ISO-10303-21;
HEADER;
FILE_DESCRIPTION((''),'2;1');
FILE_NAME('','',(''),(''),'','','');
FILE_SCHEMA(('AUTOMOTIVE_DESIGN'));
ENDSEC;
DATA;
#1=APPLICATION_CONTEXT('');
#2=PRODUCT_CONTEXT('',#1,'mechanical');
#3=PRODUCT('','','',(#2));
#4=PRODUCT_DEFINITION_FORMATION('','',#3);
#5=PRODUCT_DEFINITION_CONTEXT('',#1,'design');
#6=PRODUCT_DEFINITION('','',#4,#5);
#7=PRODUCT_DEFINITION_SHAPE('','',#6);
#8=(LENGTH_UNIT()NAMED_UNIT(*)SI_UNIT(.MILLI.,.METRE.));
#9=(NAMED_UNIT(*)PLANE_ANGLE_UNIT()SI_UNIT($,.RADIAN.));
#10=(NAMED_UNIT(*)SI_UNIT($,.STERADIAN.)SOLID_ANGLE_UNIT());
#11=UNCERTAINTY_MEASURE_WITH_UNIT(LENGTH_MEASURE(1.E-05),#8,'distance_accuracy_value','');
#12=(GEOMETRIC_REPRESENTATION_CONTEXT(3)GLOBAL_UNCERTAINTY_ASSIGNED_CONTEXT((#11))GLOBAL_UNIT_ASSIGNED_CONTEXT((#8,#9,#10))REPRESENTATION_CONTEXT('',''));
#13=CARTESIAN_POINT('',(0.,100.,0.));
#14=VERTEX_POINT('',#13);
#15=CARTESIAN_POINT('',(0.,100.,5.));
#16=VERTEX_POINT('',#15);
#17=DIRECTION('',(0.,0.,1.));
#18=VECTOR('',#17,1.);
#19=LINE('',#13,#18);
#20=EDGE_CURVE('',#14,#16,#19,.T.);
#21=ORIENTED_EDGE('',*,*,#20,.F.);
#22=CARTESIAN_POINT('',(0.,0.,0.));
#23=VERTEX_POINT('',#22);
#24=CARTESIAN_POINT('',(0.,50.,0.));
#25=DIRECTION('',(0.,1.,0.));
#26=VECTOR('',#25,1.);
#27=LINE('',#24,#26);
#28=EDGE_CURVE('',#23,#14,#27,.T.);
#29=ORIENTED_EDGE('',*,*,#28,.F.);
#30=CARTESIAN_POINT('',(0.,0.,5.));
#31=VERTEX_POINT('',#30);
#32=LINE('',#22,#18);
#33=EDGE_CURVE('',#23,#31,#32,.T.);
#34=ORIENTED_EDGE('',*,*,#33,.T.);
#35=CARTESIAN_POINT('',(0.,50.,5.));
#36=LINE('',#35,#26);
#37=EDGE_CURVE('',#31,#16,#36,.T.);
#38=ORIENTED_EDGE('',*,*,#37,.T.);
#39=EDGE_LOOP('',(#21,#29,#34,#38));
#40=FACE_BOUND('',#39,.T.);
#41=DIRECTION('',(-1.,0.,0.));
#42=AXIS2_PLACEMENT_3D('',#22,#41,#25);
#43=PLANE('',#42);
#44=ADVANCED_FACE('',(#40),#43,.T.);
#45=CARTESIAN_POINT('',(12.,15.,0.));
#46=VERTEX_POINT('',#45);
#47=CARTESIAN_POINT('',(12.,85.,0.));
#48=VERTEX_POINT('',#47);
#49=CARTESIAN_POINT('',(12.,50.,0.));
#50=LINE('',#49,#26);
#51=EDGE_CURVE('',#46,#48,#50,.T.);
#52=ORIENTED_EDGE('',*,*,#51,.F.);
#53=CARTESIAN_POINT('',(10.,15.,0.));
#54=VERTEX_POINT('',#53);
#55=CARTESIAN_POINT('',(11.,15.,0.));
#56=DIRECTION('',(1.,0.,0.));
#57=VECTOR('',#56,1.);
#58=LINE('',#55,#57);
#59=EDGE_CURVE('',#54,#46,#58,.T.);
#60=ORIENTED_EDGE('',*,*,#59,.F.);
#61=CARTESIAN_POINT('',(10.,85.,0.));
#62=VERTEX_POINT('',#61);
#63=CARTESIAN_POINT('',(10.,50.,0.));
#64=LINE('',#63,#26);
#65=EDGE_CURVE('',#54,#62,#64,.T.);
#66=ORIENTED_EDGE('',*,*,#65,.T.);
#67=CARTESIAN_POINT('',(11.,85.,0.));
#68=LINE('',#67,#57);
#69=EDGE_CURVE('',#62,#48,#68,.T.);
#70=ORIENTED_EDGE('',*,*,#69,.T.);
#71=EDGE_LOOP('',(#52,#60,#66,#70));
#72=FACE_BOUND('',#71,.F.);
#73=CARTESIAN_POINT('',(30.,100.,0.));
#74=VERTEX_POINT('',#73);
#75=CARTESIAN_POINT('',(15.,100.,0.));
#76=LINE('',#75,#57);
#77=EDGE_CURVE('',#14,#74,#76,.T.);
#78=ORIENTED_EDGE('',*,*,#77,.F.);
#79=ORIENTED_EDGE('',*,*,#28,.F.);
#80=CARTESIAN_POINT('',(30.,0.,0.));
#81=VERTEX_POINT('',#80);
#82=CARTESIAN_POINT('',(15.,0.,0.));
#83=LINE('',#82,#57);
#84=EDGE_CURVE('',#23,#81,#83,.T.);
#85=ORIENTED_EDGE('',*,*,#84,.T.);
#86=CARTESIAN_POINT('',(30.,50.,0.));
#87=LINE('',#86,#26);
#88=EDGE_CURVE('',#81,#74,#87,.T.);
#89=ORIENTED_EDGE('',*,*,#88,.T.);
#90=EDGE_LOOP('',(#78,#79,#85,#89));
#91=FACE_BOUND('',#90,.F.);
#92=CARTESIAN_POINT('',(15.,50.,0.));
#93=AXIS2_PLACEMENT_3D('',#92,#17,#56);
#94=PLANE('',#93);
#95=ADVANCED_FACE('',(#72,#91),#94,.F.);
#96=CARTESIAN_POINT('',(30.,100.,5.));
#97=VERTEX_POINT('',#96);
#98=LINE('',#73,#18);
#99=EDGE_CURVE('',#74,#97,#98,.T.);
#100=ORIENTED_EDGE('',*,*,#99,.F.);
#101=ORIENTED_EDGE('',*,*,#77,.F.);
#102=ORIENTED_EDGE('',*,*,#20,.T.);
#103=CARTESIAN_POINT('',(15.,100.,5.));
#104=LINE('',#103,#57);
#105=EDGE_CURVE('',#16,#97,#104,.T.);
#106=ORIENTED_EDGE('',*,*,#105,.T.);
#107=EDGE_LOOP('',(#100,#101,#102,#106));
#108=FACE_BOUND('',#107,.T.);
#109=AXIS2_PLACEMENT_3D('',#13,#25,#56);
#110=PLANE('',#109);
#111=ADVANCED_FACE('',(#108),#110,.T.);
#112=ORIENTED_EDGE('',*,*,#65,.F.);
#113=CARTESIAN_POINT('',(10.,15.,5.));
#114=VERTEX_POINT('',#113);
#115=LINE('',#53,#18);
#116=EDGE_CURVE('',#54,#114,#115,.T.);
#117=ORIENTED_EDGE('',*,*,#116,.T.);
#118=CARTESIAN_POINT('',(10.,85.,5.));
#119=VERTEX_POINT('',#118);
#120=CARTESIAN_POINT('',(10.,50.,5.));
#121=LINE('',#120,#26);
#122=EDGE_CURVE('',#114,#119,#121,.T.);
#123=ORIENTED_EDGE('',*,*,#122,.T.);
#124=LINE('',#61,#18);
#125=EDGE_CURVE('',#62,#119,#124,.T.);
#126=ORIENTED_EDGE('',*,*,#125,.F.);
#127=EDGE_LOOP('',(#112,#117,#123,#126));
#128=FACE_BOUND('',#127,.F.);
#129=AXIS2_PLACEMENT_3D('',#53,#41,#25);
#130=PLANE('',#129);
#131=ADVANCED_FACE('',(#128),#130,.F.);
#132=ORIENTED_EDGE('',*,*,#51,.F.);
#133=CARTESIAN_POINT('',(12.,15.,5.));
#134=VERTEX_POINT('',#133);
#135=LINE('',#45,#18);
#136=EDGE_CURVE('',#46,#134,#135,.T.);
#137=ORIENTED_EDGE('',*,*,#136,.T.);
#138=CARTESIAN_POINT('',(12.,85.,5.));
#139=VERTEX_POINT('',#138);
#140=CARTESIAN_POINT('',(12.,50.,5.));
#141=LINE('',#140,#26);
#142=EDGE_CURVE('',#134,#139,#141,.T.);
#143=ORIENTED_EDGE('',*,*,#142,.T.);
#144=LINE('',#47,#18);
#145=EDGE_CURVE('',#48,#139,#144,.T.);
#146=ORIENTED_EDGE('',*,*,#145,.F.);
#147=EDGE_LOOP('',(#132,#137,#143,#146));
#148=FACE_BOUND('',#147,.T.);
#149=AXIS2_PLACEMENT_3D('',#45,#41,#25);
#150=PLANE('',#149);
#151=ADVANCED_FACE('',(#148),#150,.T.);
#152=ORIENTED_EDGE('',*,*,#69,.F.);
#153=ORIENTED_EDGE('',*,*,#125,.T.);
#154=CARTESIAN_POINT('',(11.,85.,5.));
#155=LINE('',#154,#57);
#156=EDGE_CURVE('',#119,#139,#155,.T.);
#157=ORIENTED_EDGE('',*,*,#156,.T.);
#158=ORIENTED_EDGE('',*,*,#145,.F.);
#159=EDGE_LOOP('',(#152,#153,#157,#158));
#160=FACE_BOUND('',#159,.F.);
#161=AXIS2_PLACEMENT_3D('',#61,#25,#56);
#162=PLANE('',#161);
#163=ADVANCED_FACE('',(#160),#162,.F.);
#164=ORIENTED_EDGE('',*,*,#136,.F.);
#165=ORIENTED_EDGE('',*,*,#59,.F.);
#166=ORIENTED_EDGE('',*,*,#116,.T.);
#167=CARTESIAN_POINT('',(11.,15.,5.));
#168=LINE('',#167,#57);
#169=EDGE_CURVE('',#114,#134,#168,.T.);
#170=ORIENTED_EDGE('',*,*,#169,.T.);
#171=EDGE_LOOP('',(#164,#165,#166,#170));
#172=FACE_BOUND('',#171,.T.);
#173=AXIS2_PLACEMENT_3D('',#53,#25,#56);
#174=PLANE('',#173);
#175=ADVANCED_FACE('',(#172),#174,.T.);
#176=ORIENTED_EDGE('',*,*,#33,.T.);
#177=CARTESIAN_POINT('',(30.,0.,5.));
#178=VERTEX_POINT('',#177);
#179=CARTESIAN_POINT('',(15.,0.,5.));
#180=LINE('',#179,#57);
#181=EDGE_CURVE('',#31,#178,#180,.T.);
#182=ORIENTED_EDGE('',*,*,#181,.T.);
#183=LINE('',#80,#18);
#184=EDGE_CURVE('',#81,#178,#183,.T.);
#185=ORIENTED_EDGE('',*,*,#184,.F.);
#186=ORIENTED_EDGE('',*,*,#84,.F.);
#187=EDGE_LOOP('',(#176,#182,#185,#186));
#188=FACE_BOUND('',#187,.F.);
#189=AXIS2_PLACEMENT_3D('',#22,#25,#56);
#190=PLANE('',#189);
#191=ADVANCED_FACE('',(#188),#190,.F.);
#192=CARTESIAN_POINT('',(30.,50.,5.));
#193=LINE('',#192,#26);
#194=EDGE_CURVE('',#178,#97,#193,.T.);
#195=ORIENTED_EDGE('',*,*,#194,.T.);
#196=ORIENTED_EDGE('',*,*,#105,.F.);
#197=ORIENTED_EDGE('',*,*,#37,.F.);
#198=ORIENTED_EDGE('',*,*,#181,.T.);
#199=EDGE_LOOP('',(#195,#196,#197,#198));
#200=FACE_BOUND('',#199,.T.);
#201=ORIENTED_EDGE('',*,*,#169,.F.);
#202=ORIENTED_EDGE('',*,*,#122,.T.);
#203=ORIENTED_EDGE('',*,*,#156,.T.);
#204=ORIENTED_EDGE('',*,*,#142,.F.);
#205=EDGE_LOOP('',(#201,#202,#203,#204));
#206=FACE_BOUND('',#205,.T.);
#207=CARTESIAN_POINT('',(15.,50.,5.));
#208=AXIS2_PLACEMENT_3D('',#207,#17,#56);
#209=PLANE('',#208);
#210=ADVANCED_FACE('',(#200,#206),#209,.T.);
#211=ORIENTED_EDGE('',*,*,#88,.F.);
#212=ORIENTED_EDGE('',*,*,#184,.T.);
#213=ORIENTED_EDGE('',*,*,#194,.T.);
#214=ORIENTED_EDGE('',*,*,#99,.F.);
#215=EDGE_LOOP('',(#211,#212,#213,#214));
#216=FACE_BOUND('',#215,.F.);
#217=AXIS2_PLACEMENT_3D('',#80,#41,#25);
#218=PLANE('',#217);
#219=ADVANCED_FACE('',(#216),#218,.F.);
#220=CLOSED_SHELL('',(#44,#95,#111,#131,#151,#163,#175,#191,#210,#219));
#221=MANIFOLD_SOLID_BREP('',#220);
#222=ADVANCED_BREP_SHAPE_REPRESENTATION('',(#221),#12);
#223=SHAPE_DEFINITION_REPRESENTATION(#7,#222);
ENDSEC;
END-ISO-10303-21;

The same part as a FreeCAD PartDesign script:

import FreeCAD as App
import Part
import Sketcher
from FreeCAD import Vector
Q = App.Units.Quantity

doc = App.newDocument("Part")
params = doc.addObject("Spreadsheet::Sheet", "Params")
for row, (alias, value) in enumerate([
    ("sketch1_width", "2 mm"),
    ("sketch1_height", "70 mm"),
    ("pad1_length", "5 mm"),
    ("sketch2_width", "30 mm"),
    ("sketch2_height", "100 mm"),
    ("pad2_length", "5 mm"),
], start=1):
    params.set(f"A{row}", alias)
    params.set(f"B{row}", "=" + value)
    params.setAlias(f"B{row}", alias)

body = doc.addObject("PartDesign::Body", "Body")

# Sketch on XY plane
sketch1 = body.newObject("Sketcher::SketchObject", "Sketch")
sketch1.AttachmentSupport = (doc.getObject("XY_Plane"), [""])
sketch1.MapMode = "FlatFace"
sketch1.addGeometry(Part.LineSegment(Vector(10, 85, 0), Vector(10, 15, 0)), False)
sketch1.addGeometry(Part.LineSegment(Vector(10, 15, 0), Vector(12, 15, 0)), False)
sketch1.addGeometry(Part.LineSegment(Vector(12, 15, 0), Vector(12, 85, 0)), False)
sketch1.addGeometry(Part.LineSegment(Vector(12, 85, 0), Vector(10, 85, 0)), False)
sketch1.addConstraint(Sketcher.Constraint("Coincident", 0, 2, 1, 1))
sketch1.addConstraint(Sketcher.Constraint("Coincident", 1, 2, 2, 1))
sketch1.addConstraint(Sketcher.Constraint("Coincident", 2, 2, 3, 1))
sketch1.addConstraint(Sketcher.Constraint("Coincident", 3, 2, 0, 1))
sketch1.addConstraint(Sketcher.Constraint("Vertical", 0))
sketch1.addConstraint(Sketcher.Constraint("Horizontal", 1))
sketch1.addConstraint(Sketcher.Constraint("Vertical", 2))
sketch1.addConstraint(Sketcher.Constraint("Horizontal", 3))
sketch1.addConstraint(Sketcher.Constraint("DistanceX", 1, 1, 1, 2, Q("2 mm")))
sketch1.addConstraint(Sketcher.Constraint("DistanceY", 0, 2, 0, 1, Q("70 mm")))
sketch1.addConstraint(Sketcher.Constraint("DistanceX", -1, 1, 0, 2, Q("10 mm")))
sketch1.addConstraint(Sketcher.Constraint("DistanceY", -1, 1, 0, 2, Q("15 mm")))
sketch1.setExpression("Constraints[8]", "Params.sketch1_width")
sketch1.setExpression("Constraints[9]", "Params.sketch1_height")
pad1 = body.newObject("PartDesign::Pad", "Pad")
pad1.Profile = sketch1
pad1.setExpression("Length", "Params.pad1_length")
body2 = doc.addObject("PartDesign::Body", "Body001")

# Sketch on XY plane
sketch2 = body2.newObject("Sketcher::SketchObject", "Sketch001")
sketch2.AttachmentSupport = (doc.getObject("XY_Plane001"), [""])
sketch2.MapMode = "FlatFace"
sketch2.addGeometry(Part.LineSegment(Vector(0, 100, 0), Vector(0, 0, 0)), False)
sketch2.addGeometry(Part.LineSegment(Vector(0, 0, 0), Vector(30, 0, 0)), False)
sketch2.addGeometry(Part.LineSegment(Vector(30, 0, 0), Vector(30, 100, 0)), False)
sketch2.addGeometry(Part.LineSegment(Vector(30, 100, 0), Vector(0, 100, 0)), False)
sketch2.addConstraint(Sketcher.Constraint("Coincident", 0, 2, 1, 1))
sketch2.addConstraint(Sketcher.Constraint("Coincident", 1, 2, 2, 1))
sketch2.addConstraint(Sketcher.Constraint("Coincident", 2, 2, 3, 1))
sketch2.addConstraint(Sketcher.Constraint("Coincident", 3, 2, 0, 1))
sketch2.addConstraint(Sketcher.Constraint("Vertical", 0))
sketch2.addConstraint(Sketcher.Constraint("Horizontal", 1))
sketch2.addConstraint(Sketcher.Constraint("Vertical", 2))
sketch2.addConstraint(Sketcher.Constraint("Horizontal", 3))
sketch2.addConstraint(Sketcher.Constraint("Coincident", 0, 2, -1, 1))
sketch2.addConstraint(Sketcher.Constraint("DistanceX", 1, 1, 1, 2, Q("30 mm")))
sketch2.addConstraint(Sketcher.Constraint("DistanceY", 0, 2, 0, 1, Q("100 mm")))
sketch2.setExpression("Constraints[9]", "Params.sketch2_width")
sketch2.setExpression("Constraints[10]", "Params.sketch2_height")
pad2 = body2.newObject("PartDesign::Pad", "Pad001")
pad2.Profile = sketch2
pad2.setExpression("Length", "Params.pad2_length")
doc.recompute()

boolean = body2.newObject("PartDesign::Boolean", "Boolean")
boolean.Type = "Cut"
boolean.addObjects([body])

doc.recompute()
